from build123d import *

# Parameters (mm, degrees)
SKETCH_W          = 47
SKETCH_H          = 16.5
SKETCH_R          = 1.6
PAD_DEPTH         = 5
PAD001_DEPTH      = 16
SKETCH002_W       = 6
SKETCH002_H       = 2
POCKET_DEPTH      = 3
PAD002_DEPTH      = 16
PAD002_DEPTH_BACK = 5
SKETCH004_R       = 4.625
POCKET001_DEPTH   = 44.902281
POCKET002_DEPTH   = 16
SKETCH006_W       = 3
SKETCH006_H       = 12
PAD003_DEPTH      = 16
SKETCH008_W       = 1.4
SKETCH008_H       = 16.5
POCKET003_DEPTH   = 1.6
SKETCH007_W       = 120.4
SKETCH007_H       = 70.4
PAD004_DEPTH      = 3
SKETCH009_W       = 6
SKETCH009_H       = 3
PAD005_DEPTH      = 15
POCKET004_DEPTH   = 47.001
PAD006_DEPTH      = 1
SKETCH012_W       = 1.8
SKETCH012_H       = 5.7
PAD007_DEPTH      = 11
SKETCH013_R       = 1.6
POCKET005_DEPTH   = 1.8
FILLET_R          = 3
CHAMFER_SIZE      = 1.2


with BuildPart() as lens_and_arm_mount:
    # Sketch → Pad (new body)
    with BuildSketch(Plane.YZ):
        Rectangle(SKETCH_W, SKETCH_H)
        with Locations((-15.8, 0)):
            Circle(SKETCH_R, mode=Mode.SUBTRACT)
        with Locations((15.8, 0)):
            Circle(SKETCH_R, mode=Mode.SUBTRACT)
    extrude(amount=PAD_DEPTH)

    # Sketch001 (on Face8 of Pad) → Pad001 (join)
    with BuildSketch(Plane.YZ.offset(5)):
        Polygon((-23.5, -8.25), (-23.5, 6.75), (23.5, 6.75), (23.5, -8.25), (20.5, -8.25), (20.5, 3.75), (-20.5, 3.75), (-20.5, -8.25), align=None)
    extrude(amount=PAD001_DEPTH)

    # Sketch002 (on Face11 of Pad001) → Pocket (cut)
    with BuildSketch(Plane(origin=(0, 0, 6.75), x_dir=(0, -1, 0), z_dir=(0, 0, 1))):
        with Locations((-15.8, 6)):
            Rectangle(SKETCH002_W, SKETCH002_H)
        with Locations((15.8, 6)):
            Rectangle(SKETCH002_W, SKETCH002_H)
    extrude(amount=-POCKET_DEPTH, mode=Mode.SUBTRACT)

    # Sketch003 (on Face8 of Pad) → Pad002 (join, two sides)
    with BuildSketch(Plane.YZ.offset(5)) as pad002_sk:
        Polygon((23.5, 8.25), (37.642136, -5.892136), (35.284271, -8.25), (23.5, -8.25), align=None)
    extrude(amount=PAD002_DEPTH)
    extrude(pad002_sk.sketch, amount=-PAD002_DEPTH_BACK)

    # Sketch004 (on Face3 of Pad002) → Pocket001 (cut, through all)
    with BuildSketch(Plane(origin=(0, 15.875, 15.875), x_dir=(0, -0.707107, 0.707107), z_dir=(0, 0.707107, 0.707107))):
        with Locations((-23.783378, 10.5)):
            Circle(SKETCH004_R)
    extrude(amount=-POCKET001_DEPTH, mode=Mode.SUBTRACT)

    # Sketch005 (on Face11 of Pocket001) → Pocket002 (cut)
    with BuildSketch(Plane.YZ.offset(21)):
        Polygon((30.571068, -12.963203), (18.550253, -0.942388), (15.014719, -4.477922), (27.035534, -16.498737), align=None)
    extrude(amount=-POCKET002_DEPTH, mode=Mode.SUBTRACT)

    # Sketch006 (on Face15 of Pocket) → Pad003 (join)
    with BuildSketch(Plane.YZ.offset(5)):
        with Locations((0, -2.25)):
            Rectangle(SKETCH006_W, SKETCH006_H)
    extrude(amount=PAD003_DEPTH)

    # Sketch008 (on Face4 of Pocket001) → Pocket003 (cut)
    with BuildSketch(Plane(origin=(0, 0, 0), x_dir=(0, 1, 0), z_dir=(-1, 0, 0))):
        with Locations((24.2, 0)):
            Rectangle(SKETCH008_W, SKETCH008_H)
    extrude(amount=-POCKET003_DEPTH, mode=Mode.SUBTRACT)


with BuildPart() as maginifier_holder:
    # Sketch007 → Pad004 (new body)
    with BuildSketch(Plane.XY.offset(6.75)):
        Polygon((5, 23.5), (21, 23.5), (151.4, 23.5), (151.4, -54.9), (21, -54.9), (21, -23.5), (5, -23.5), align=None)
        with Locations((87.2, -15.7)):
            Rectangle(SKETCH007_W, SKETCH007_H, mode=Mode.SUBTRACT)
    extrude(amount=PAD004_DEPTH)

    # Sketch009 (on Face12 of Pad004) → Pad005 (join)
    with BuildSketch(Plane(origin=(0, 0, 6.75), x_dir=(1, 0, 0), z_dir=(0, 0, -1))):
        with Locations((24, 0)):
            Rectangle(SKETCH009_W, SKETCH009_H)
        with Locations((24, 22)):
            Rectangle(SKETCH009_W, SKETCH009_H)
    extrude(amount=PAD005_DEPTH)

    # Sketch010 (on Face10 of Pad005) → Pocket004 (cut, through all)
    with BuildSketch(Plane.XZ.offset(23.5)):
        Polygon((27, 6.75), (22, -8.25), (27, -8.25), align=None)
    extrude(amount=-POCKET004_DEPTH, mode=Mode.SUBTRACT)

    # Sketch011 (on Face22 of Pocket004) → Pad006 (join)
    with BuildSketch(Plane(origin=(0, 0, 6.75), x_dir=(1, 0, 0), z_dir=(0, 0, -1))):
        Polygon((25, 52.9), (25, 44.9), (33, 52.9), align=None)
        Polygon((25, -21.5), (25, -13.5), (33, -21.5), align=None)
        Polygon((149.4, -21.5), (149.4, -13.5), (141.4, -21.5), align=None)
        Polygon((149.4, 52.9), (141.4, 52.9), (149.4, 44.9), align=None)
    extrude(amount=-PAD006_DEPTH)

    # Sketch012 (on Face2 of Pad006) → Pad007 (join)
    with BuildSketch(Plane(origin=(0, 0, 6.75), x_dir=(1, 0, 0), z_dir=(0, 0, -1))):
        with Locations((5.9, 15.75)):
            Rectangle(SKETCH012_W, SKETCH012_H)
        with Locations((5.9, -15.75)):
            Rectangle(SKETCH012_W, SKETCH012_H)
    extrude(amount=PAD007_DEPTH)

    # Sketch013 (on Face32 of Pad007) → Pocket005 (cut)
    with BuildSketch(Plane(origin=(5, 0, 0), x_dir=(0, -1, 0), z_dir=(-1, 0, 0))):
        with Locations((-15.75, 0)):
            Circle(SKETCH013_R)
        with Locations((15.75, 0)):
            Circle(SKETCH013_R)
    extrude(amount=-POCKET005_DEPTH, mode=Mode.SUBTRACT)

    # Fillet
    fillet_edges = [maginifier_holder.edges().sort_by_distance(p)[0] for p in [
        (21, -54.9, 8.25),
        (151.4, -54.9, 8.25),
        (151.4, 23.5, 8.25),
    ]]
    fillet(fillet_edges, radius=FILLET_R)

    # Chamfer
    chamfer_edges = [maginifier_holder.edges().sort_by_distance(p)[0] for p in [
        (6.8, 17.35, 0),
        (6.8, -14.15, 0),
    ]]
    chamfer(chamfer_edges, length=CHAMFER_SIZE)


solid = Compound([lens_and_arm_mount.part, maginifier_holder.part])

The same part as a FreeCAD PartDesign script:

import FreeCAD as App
import Part
import Sketcher

V = App.Vector
Q = App.Units.Quantity


def edges_at(feature, points):
    """Names of the edges that pass closest to the given points."""
    edges = feature.Shape.Edges
    near = lambda p: min(range(len(edges)), key=lambda i: edges[i].distToShape(Part.Vertex(*p))[0])
    return sorted({f"Edge{near(p) + 1}" for p in points})


def add_polygon(sketch, points):
    """Adds a closed chain of lines whose ends are joined by coincident constraints."""
    first, n = sketch.GeometryCount, len(points)
    for a, b in zip(points, points[1:] + points[:1]):
        sketch.addGeometry(Part.LineSegment(App.Vector(*a, 0), App.Vector(*b, 0)), False)
    for i in range(n):
        sketch.addConstraint(Sketcher.Constraint("Coincident", first + i, 2, first + (i + 1) % n, 1))

doc = App.newDocument("Part")
body = doc.addObject("PartDesign::Body", "Body")

sketch1 = body.newObject("Sketcher::SketchObject", "Sketch")
sketch1.AttachmentSupport = (doc.getObject("YZ_Plane"), [""])
sketch1.MapMode = "FlatFace"
add_polygon(sketch1, [(-23.5, 8.25), (-23.5, -8.25), (23.5, -8.25), (23.5, 8.25)])
sketch1.addGeometry(Part.Circle(V(-15.8, 0, 0), V(0, 0, 1), 1.6), False)
sketch1.addGeometry(Part.Circle(V(15.8, 0, 0), V(0, 0, 1), 1.6), False)
sketch1.addConstraint(Sketcher.Constraint("Vertical", 0))
sketch1.addConstraint(Sketcher.Constraint("Horizontal", 1))
sketch1.addConstraint(Sketcher.Constraint("Vertical", 2))
sketch1.addConstraint(Sketcher.Constraint("Horizontal", 3))
sketch1.addConstraint(Sketcher.Constraint("Equal", 4, 5))
sketch1.addConstraint(Sketcher.Constraint("Symmetric", 4, 3, 5, 3, -1, 1))
sketch1.addConstraint(Sketcher.Constraint("Symmetric", 0, 2, 2, 2, -1, 1))
sketch1.addConstraint(Sketcher.Constraint("PointOnObject", 4, 3, -1))
sketch1.addConstraint(Sketcher.Constraint("Diameter", 4, Q("3.2 mm")))
sketch1.addConstraint(Sketcher.Constraint("DistanceX", 1, 1, 1, 2, Q("47 mm")))
sketch1.addConstraint(Sketcher.Constraint("DistanceY", 0, 2, 0, 1, Q("16.5 mm")))
sketch1.addConstraint(Sketcher.Constraint("DistanceX", 4, 3, -1, 1, Q("15.8 mm")))
pad1 = body.newObject("PartDesign::Pad", "Pad")
pad1.Profile = sketch1
pad1.Length = 5

sketch2 = body.newObject("Sketcher::SketchObject", "Sketch001")
sketch2.AttachmentSupport = (doc.getObject("YZ_Plane"), [""])
sketch2.MapMode = "FlatFace"
sketch2.AttachmentOffset = App.Placement(V(0, 0, 5), App.Rotation())
add_polygon(sketch2, [(-23.5, 6.75), (-23.5, -8.25), (-20.5, -8.25), (-20.5, 3.75), (20.5, 3.75), (20.5, -8.25), (23.5, -8.25), (23.5, 6.75)])
sketch2.addConstraint(Sketcher.Constraint("Vertical", 0))
sketch2.addConstraint(Sketcher.Constraint("Horizontal", 1))
sketch2.addConstraint(Sketcher.Constraint("Vertical", 2))
sketch2.addConstraint(Sketcher.Constraint("Horizontal", 3))
sketch2.addConstraint(Sketcher.Constraint("Vertical", 4))
sketch2.addConstraint(Sketcher.Constraint("Horizontal", 5))
sketch2.addConstraint(Sketcher.Constraint("Vertical", 6))
sketch2.addConstraint(Sketcher.Constraint("Horizontal", 7))
sketch2.addConstraint(Sketcher.Constraint("Symmetric", 1, 2, 4, 2, -2))
sketch2.addConstraint(Sketcher.Constraint("Equal", 1, 5))
sketch2.addConstraint(Sketcher.Constraint("DistanceX", 1, 1, 1, 2, Q("3 mm")))
sketch2.addConstraint(Sketcher.Constraint("DistanceX", 3, 1, 3, 2, Q("41 mm")))
sketch2.addConstraint(Sketcher.Constraint("DistanceY", 0, 2, 0, 1, Q("15 mm")))
sketch2.addConstraint(Sketcher.Constraint("DistanceY", 2, 1, 2, 2, Q("12 mm")))
sketch2.addConstraint(Sketcher.Constraint("DistanceY", 0, 2, -1, 1, Q("8.25 mm")))
pad2 = body.newObject("PartDesign::Pad", "Pad001")
pad2.Profile = sketch2
pad2.Length = 16

sketch3 = body.newObject("Sketcher::SketchObject", "Sketch002")
sketch3.AttachmentSupport = (doc.getObject("XY_Plane"), [""])
sketch3.MapMode = "FlatFace"
sketch3.AttachmentOffset = App.Placement(V(0, 0, 6.75), App.Rotation())
add_polygon(sketch3, [(7, 18.8), (5, 18.8), (5, 12.8), (7, 12.8)])
add_polygon(sketch3, [(7, -12.8), (5, -12.8), (5, -18.8), (7, -18.8)])
sketch3.addConstraint(Sketcher.Constraint("Horizontal", 0))
sketch3.addConstraint(Sketcher.Constraint("Vertical", 1))
sketch3.addConstraint(Sketcher.Constraint("Horizontal", 2))
sketch3.addConstraint(Sketcher.Constraint("Vertical", 3))
sketch3.addConstraint(Sketcher.Constraint("Horizontal", 4))
sketch3.addConstraint(Sketcher.Constraint("Vertical", 5))
sketch3.addConstraint(Sketcher.Constraint("Horizontal", 6))
sketch3.addConstraint(Sketcher.Constraint("Vertical", 7))
sketch3.addConstraint(Sketcher.Constraint("Symmetric", 1, 2, 4, 2, -1))
sketch3.addConstraint(Sketcher.Constraint("Symmetric", 3, 2, 6, 2, -1))
sketch3.addConstraint(Sketcher.Constraint("DistanceX", 0, 2, 0, 1, Q("2 mm")))
sketch3.addConstraint(Sketcher.Constraint("DistanceY", 1, 2, 1, 1, Q("6 mm")))
sketch3.addConstraint(Sketcher.Constraint("DistanceX", -1, 1, 0, 2, Q("5 mm")))
sketch3.addConstraint(Sketcher.Constraint("DistanceY", -1, 1, 0, 2, Q("18.8 mm")))
pocket1 = body.newObject("PartDesign::Pocket", "Pocket")
pocket1.Profile = sketch3
pocket1.Length = 3

sketch4 = body.newObject("Sketcher::SketchObject", "Sketch003")
sketch4.AttachmentSupport = (doc.getObject("YZ_Plane"), [""])
sketch4.MapMode = "FlatFace"
sketch4.AttachmentOffset = App.Placement(V(0, 0, 5), App.Rotation())
add_polygon(sketch4, [(37.642136, -5.892136), (23.5, 8.25), (23.5, -8.25), (35.284271, -8.25)])
sketch4.addConstraint(Sketcher.Constraint("Vertical", 1))
sketch4.addConstraint(Sketcher.Constraint("Horizontal", 2))
sketch4.addConstraint(Sketcher.Constraint("Perpendicular", 0, 3))
sketch4.addConstraint(Sketcher.Constraint("Angle", 0, Q("135 deg")))
sketch4.addConstraint(Sketcher.Constraint("Distance", 0, Q("20.000001 mm")))
sketch4.addConstraint(Sketcher.Constraint("DistanceY", 1, 2, 1, 1, Q("16.5 mm")))
sketch4.addConstraint(Sketcher.Constraint("DistanceX", -1, 1, 0, 2, Q("23.5 mm")))
sketch4.addConstraint(Sketcher.Constraint("DistanceY", -1, 1, 0, 2, Q("8.25 mm")))
pad3 = body.newObject("PartDesign::Pad", "Pad002")
pad3.Profile = sketch4
pad3.Type = "TwoLengths"
pad3.Length = 16
pad3.Length2 = 5

sketch5 = body.newObject("Sketcher::SketchObject", "Sketch004")
sketch5.Placement = App.Placement(V(0, 15.875, 15.875), App.Rotation(V(0, -0.707106781, 0.707106781), V(0.999999999, 0, 0), V(0, 0.707106781, 0.707106781), "ZXY"))
sketch5.addGeometry(Part.Circle(V(-23.783378, 10.5, 0), V(0, 0, 1), 4.625), False)
sketch5.addConstraint(Sketcher.Constraint("Diameter", 0, Q("9.25 mm")))
sketch5.addConstraint(Sketcher.Constraint("DistanceY", -1, 1, 0, 3, Q("10.5 mm")))
sketch5.addConstraint(Sketcher.Constraint("DistanceX", 0, 3, -1, 1, Q("23.783378 mm")))
pocket2 = body.newObject("PartDesign::Pocket", "Pocket001")
pocket2.Profile = sketch5
pocket2.Type = "ThroughAll"

sketch6 = body.newObject("Sketcher::SketchObject", "Sketch005")
sketch6.AttachmentSupport = (doc.getObject("YZ_Plane"), [""])
sketch6.MapMode = "FlatFace"
sketch6.AttachmentOffset = App.Placement(V(0, 0, 21), App.Rotation())
add_polygon(sketch6, [(30.571068, -12.963203), (18.550253, -0.942388), (15.014719, -4.477922), (27.035534, -16.498737)])
sketch6.addConstraint(Sketcher.Constraint("Perpendicular", 0, 1))
sketch6.addConstraint(Sketcher.Constraint("Perpendicular", 1, 2))
sketch6.addConstraint(Sketcher.Constraint("Perpendicular", 2, 3))
sketch6.addConstraint(Sketcher.Constraint("Angle", 0, Q("135 deg")))
sketch6.addConstraint(Sketcher.Constraint("Distance", 0, Q("17 mm")))
sketch6.addConstraint(Sketcher.Constraint("Distance", 1, Q("5 mm")))
sketch6.addConstraint(Sketcher.Constraint("DistanceY", 0, 2, -1, 1, Q("0.942388 mm")))
sketch6.addConstraint(Sketcher.Constraint("DistanceX", -1, 1, 1, 2, Q("15.014719 mm")))
pocket3 = body.newObject("PartDesign::Pocket", "Pocket002")
pocket3.Profile = sketch6
pocket3.Length = 16

sketch7 = body.newObject("Sketcher::SketchObject", "Sketch006")
sketch7.AttachmentSupport = (doc.getObject("YZ_Plane"), [""])
sketch7.MapMode = "FlatFace"
sketch7.AttachmentOffset = App.Placement(V(0, 0, 5), App.Rotation())
add_polygon(sketch7, [(-1.5, 3.75), (-1.5, -8.25), (1.5, -8.25), (1.5, 3.75)])
sketch7.addConstraint(Sketcher.Constraint("Vertical", 0))
sketch7.addConstraint(Sketcher.Constraint("Horizontal", 1))
sketch7.addConstraint(Sketcher.Constraint("Vertical", 2))
sketch7.addConstraint(Sketcher.Constraint("Horizontal", 3))
sketch7.addConstraint(Sketcher.Constraint("DistanceX", 1, 1, 1, 2, Q("3 mm")))
sketch7.addConstraint(Sketcher.Constraint("DistanceY", 0, 2, 0, 1, Q("12 mm")))
sketch7.addConstraint(Sketcher.Constraint("DistanceX", 0, 2, -1, 1, Q("1.5 mm")))
sketch7.addConstraint(Sketcher.Constraint("DistanceY", 0, 2, -1, 1, Q("8.25 mm")))
pad4 = body.newObject("PartDesign::Pad", "Pad003")
pad4.Profile = sketch7
pad4.Length = 16

sketch8 = body.newObject("Sketcher::SketchObject", "Sketch007")
sketch8.AttachmentSupport = (doc.getObject("YZ_Plane"), [""])
sketch8.MapMode = "FlatFace"
add_polygon(sketch8, [(23.5, -8.25), (23.5, 8.25), (24.9, 8.25), (24.9, -8.25)])
sketch8.addConstraint(Sketcher.Constraint("Vertical", 0))
sketch8.addConstraint(Sketcher.Constraint("Horizontal", 1))
sketch8.addConstraint(Sketcher.Constraint("Vertical", 2))
sketch8.addConstraint(Sketcher.Constraint("Horizontal", 3))
sketch8.addConstraint(Sketcher.Constraint("DistanceX", 1, 1, 1, 2, Q("1.4 mm")))
sketch8.addConstraint(Sketcher.Constraint("DistanceY", 0, 1, 0, 2, Q("16.5 mm")))
sketch8.addConstraint(Sketcher.Constraint("DistanceX", -1, 1, 0, 2, Q("23.5 mm")))
sketch8.addConstraint(Sketcher.Constraint("DistanceY", -1, 1, 0, 2, Q("8.25 mm")))
pocket4 = body.newObject("PartDesign::Pocket", "Pocket003")
pocket4.Profile = sketch8
pocket4.Length = 1.6
pocket4.Reversed = True
body2 = doc.addObject("PartDesign::Body", "Body001")

sketch9 = body2.newObject("Sketcher::SketchObject", "Sketch008")
sketch9.AttachmentSupport = (doc.getObject("XY_Plane001"), [""])
sketch9.MapMode = "FlatFace"
sketch9.AttachmentOffset = App.Placement(V(0, 0, 6.75), App.Rotation())
add_polygon(sketch9, [(151.4, 23.5), (5, 23.5), (5, -23.5), (21, -23.5), (21, -54.9), (151.4, -54.9)])
add_polygon(sketch9, [(27, -50.9), (27, 19.5), (147.4, 19.5), (147.4, -50.9)])
sketch9.addConstraint(Sketcher.Constraint("Horizontal", 0))
sketch9.addConstraint(Sketcher.Constraint("Vertical", 1))
sketch9.addConstraint(Sketcher.Constraint("Horizontal", 2))
sketch9.addConstraint(Sketcher.Constraint("Vertical", 3))
sketch9.addConstraint(Sketcher.Constraint("Horizontal", 4))
sketch9.addConstraint(Sketcher.Constraint("Vertical", 5))
sketch9.addConstraint(Sketcher.Constraint("Vertical", 6))
sketch9.addConstraint(Sketcher.Constraint("Horizontal", 7))
sketch9.addConstraint(Sketcher.Constraint("Vertical", 8))
sketch9.addConstraint(Sketcher.Constraint("Horizontal", 9))
sketch9.addConstraint(Sketcher.Constraint("DistanceX", 2, 1, 2, 2, Q("16 mm")))
sketch9.addConstraint(Sketcher.Constraint("DistanceY", 1, 2, 1, 1, Q("47 mm")))
sketch9.addConstraint(Sketcher.Constraint("DistanceX", 0, 2, 0, 1, Q("146.4 mm")))
sketch9.addConstraint(Sketcher.Constraint("DistanceX", 7, 1, 7, 2, Q("120.4 mm")))
sketch9.addConstraint(Sketcher.Constraint("DistanceY", 3, 2, 3, 1, Q("31.4 mm")))
sketch9.addConstraint(Sketcher.Constraint("DistanceY", 6, 1, 6, 2, Q("70.4 mm")))
sketch9.addConstraint(Sketcher.Constraint("DistanceX", -1, 1, 0, 2, Q("5 mm")))
sketch9.addConstraint(Sketcher.Constraint("DistanceX", -1, 1, 6, 2, Q("27 mm")))
sketch9.addConstraint(Sketcher.Constraint("DistanceY", 6, 2, 0, 2, Q("4 mm")))
sketch9.addConstraint(Sketcher.Constraint("DistanceY", -1, 1, 0, 2, Q("23.5 mm")))
pad5 = body2.newObject("PartDesign::Pad", "Pad004")
pad5.Profile = sketch9
pad5.Length = 3

sketch10 = body2.newObject("Sketcher::SketchObject", "Sketch009")
sketch10.AttachmentSupport = (doc.getObject("XY_Plane001"), [""])
sketch10.MapMode = "FlatFace"
sketch10.AttachmentOffset = App.Placement(V(0, 0, 6.75), App.Rotation())
add_polygon(sketch10, [(21, -1.5), (21, 1.5), (27, 1.5), (27, -1.5)])
add_polygon(sketch10, [(21, -23.5), (21, -20.5), (27, -20.5), (27, -23.5)])
sketch10.addConstraint(Sketcher.Constraint("Vertical", 0))
sketch10.addConstraint(Sketcher.Constraint("Horizontal", 1))
sketch10.addConstraint(Sketcher.Constraint("Vertical", 2))
sketch10.addConstraint(Sketcher.Constraint("Horizontal", 3))
sketch10.addConstraint(Sketcher.Constraint("Vertical", 4))
sketch10.addConstraint(Sketcher.Constraint("Horizontal", 5))
sketch10.addConstraint(Sketcher.Constraint("Vertical", 6))
sketch10.addConstraint(Sketcher.Constraint("Horizontal", 7))
sketch10.addConstraint(Sketcher.Constraint("Vertical", 3, 2, 4, 2))
sketch10.addConstraint(Sketcher.Constraint("Vertical", 2, 2, 5, 2))
sketch10.addConstraint(Sketcher.Constraint("Equal", 2, 4))
sketch10.addConstraint(Sketcher.Constraint("DistanceX", 1, 1, 1, 2, Q("6 mm")))
sketch10.addConstraint(Sketcher.Constraint("DistanceY", 0, 1, 0, 2, Q("3 mm")))
sketch10.addConstraint(Sketcher.Constraint("DistanceX", -1, 1, 0, 2, Q("21 mm")))
sketch10.addConstraint(Sketcher.Constraint("DistanceY", 4, 2, 3, 2, Q("19 mm")))
sketch10.addConstraint(Sketcher.Constraint("DistanceY", -1, 1, 0, 2, Q("1.5 mm")))
pad6 = body2.newObject("PartDesign::Pad", "Pad005")
pad6.Profile = sketch10
pad6.Length = 15
pad6.Reversed = True

sketch11 = body2.newObject("Sketcher::SketchObject", "Sketch010")
sketch11.AttachmentSupport = (doc.getObject("XZ_Plane001"), [""])
sketch11.MapMode = "FlatFace"
sketch11.AttachmentOffset = App.Placement(V(0, 0, 23.5), App.Rotation())
add_polygon(sketch11, [(27, 6.75), (22, -8.25), (27, -8.25)])
sketch11.addConstraint(Sketcher.Constraint("Horizontal", 1))
sketch11.addConstraint(Sketcher.Constraint("Vertical", 2))
sketch11.addConstraint(Sketcher.Constraint("DistanceX", 1, 1, 1, 2, Q("5 mm")))
sketch11.addConstraint(Sketcher.Constraint("DistanceY", 2, 1, 2, 2, Q("15 mm")))
sketch11.addConstraint(Sketcher.Constraint("DistanceX", -1, 1, 0, 2, Q("22 mm")))
sketch11.addConstraint(Sketcher.Constraint("DistanceY", 0, 2, -1, 1, Q("8.25 mm")))
pocket5 = body2.newObject("PartDesign::Pocket", "Pocket004")
pocket5.Profile = sketch11
pocket5.Type = "ThroughAll"

sketch12 = body2.newObject("Sketcher::SketchObject", "Sketch011")
sketch12.AttachmentSupport = (doc.getObject("XY_Plane001"), [""])
sketch12.MapMode = "FlatFace"
sketch12.AttachmentOffset = App.Placement(V(0, 0, 6.75), App.Rotation())
add_polygon(sketch12, [(25, -52.9), (25, -44.9), (33, -52.9)])
add_polygon(sketch12, [(25, 13.5), (25, 21.5), (33, 21.5)])
add_polygon(sketch12, [(149.4, 21.5), (149.4, 13.5), (141.4, 21.5)])
add_polygon(sketch12, [(149.4, -52.9), (141.4, -52.9), (149.4, -44.9)])
sketch12.addConstraint(Sketcher.Constraint("Vertical", 0))
sketch12.addConstraint(Sketcher.Constraint("Horizontal", 2))
sketch12.addConstraint(Sketcher.Constraint("Vertical", 3))
sketch12.addConstraint(Sketcher.Constraint("Horizontal", 4))
sketch12.addConstraint(Sketcher.Constraint("Vertical", 6))
sketch12.addConstraint(Sketcher.Constraint("Horizontal", 8))
sketch12.addConstraint(Sketcher.Constraint("Horizontal", 9))
sketch12.addConstraint(Sketcher.Constraint("Vertical", 11))
sketch12.addConstraint(Sketcher.Constraint("Perpendicular", 1, 5))
sketch12.addConstraint(Sketcher.Constraint("Perpendicular", 5, 7))
sketch12.addConstraint(Sketcher.Constraint("Perpendicular", 7, 10))
sketch12.addConstraint(Sketcher.Constraint("Horizontal", 5, 2, 6, 2))
sketch12.addConstraint(Sketcher.Constraint("Horizontal", 4, 2, 7, 2))
sketch12.addConstraint(Sketcher.Constraint("Horizontal", 2, 2, 9, 2))
sketch12.addConstraint(Sketcher.Constraint("Horizontal", 0, 2, 10, 2))
sketch12.addConstraint(Sketcher.Constraint("Vertical", 2, 2, 3, 2))
sketch12.addConstraint(Sketcher.Constraint("Vertical", 1, 2, 4, 2))
sketch12.addConstraint(Sketcher.Constraint("Vertical", 7, 2, 9, 2))
sketch12.addConstraint(Sketcher.Constraint("Vertical", 8, 2, 10, 2))
sketch12.addConstraint(Sketcher.Constraint("DistanceX", 2, 2, 2, 1, Q("8 mm")))
sketch12.addConstraint(Sketcher.Constraint("DistanceX", -1, 1, 0, 2, Q("25 mm")))
sketch12.addConstraint(Sketcher.Constraint("DistanceY", 0, 2, -1, 1, Q("44.9 mm")))
sketch12.addConstraint(Sketcher.Constraint("DistanceY", -1, 1, 3, 2, Q("21.5 mm")))
sketch12.addConstraint(Sketcher.Constraint("DistanceX", -1, 1, 6, 2, Q("149.4 mm")))
pad7 = body2.newObject("PartDesign::Pad", "Pad006")
pad7.Profile = sketch12
pad7.Length = 1

sketch13 = body2.newObject("Sketcher::SketchObject", "Sketch012")
sketch13.AttachmentSupport = (doc.getObject("XY_Plane001"), [""])
sketch13.MapMode = "FlatFace"
sketch13.AttachmentOffset = App.Placement(V(0, 0, 6.75), App.Rotation())
add_polygon(sketch13, [(5, -18.6), (5, -12.9), (6.8, -12.9), (6.8, -18.6)])
add_polygon(sketch13, [(5, 12.9), (5, 18.6), (6.8, 18.6), (6.8, 12.9)])
sketch13.addConstraint(Sketcher.Constraint("Vertical", 0))
sketch13.addConstraint(Sketcher.Constraint("Horizontal", 1))
sketch13.addConstraint(Sketcher.Constraint("Vertical", 2))
sketch13.addConstraint(Sketcher.Constraint("Horizontal", 3))
sketch13.addConstraint(Sketcher.Constraint("Vertical", 4))
sketch13.addConstraint(Sketcher.Constraint("Horizontal", 5))
sketch13.addConstraint(Sketcher.Constraint("Vertical", 6))
sketch13.addConstraint(Sketcher.Constraint("Horizontal", 7))
sketch13.addConstraint(Sketcher.Constraint("Symmetric", 3, 2, 4, 2, -1))
sketch13.addConstraint(Sketcher.Constraint("Symmetric", 1, 2, 6, 2, -1))
sketch13.addConstraint(Sketcher.Constraint("DistanceX", 1, 1, 1, 2, Q("1.8 mm")))
sketch13.addConstraint(Sketcher.Constraint("DistanceY", 0, 1, 0, 2, Q("5.7 mm")))
sketch13.addConstraint(Sketcher.Constraint("DistanceX", -1, 1, 0, 2, Q("5 mm")))
sketch13.addConstraint(Sketcher.Constraint("DistanceY", 0, 2, -1, 1, Q("12.9 mm")))
pad8 = body2.newObject("PartDesign::Pad", "Pad007")
pad8.Profile = sketch13
pad8.Length = 11
pad8.Reversed = True

sketch14 = body2.newObject("Sketcher::SketchObject", "Sketch013")
sketch14.AttachmentSupport = (doc.getObject("YZ_Plane001"), [""])
sketch14.MapMode = "FlatFace"
sketch14.AttachmentOffset = App.Placement(V(0, 0, 5), App.Rotation())
sketch14.addGeometry(Part.Circle(V(15.75, 0, 0), V(0, 0, 1), 1.6), False)
sketch14.addGeometry(Part.Circle(V(-15.75, 0, 0), V(0, 0, 1), 1.6), False)
sketch14.addConstraint(Sketcher.Constraint("Equal", 0, 1))
sketch14.addConstraint(Sketcher.Constraint("Symmetric", 0, 3, 1, 3, -1, 1))
sketch14.addConstraint(Sketcher.Constraint("PointOnObject", 0, 3, -1))
sketch14.addConstraint(Sketcher.Constraint("Diameter", 0, Q("3.2 mm")))
sketch14.addConstraint(Sketcher.Constraint("DistanceX", 1, 3, 0, 3, Q("31.5 mm")))
pocket6 = body2.newObject("PartDesign::Pocket", "Pocket005")
pocket6.Profile = sketch14
pocket6.Length = 1.8
pocket6.Reversed = True
doc.recompute()

fillet = body2.newObject("PartDesign::Fillet", "Fillet")
fillet.Base = (pocket6, edges_at(pocket6, [(21, -54.9, 8.25), (151.4, -54.9, 8.25), (151.4, 23.5, 8.25)]))
fillet.Radius = 3
doc.recompute()

chamfer = body2.newObject("PartDesign::Chamfer", "Chamfer")
chamfer.Base = (fillet, edges_at(fillet, [(6.8, 17.35, 0), (6.8, -14.15, 0)]))
chamfer.Size = 1.2

doc.recompute()
